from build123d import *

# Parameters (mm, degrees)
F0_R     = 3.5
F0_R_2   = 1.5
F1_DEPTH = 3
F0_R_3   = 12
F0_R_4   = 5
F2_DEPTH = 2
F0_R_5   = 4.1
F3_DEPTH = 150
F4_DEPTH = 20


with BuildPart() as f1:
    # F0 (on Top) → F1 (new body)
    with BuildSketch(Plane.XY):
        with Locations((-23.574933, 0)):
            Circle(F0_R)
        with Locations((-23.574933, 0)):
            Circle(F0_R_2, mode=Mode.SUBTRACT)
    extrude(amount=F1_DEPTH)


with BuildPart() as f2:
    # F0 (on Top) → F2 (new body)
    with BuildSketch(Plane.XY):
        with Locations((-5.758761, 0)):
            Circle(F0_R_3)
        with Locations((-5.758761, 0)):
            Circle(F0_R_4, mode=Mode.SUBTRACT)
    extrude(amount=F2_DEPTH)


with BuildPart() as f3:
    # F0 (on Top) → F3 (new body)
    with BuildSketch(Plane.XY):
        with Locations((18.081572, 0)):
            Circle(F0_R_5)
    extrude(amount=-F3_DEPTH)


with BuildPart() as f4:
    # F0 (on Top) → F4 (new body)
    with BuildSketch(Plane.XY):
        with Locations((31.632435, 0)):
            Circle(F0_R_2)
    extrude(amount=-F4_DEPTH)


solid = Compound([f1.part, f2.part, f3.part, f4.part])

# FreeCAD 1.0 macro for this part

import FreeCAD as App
import Part
import Sketcher
from FreeCAD import Vector

doc = App.newDocument("Part")
params = doc.addObject("Spreadsheet::Sheet", "Params")
for row, (alias, value) in enumerate([
    ("sketch1_diameter", "7 mm"),
    ("sketch1_diameter2", "3 mm"),
    ("pad1_length", "3 mm"),
    ("sketch2_diameter", "24 mm"),
    ("sketch2_diameter2", "10 mm"),
    ("pad2_length", "2 mm"),
    ("sketch3_diameter", "8.2 mm"),
    ("pad3_length", "150 mm"),
    ("sketch4_diameter", "3 mm"),
    ("pad4_length", "20 mm"),
], start=1):
    params.set(f"A{row}", alias)
    params.set(f"B{row}", "=" + value)
    params.setAlias(f"B{row}", alias)

body = doc.addObject("PartDesign::Body", "Body")

# Sketch on XY plane
sketch1 = body.newObject("Sketcher::SketchObject", "Sketch")
sketch1.AttachmentSupport = (doc.getObject("XY_Plane"), [""])
sketch1.MapMode = "FlatFace"
sketch1.addGeometry([
    Part.Circle(Vector(-23.6, 0, 0), Vector(0, 0, 1), 3.5),
    Part.Circle(Vector(-23.6, 0, 0), Vector(0, 0, 1), 1.5),
], False)
sketch1.addConstraint([
    Sketcher.Constraint("Coincident", 1, 3, 0, 3),
    Sketcher.Constraint("PointOnObject", 0, 3, -1),
    Sketcher.Constraint("Diameter", 0, 7.0),
    Sketcher.Constraint("Diameter", 1, 3.0),
    Sketcher.Constraint("DistanceX", 0, 3, -1, 1, 23.574933),
])
sketch1.setExpression("Constraints[2]", "Params.sketch1_diameter")
sketch1.setExpression("Constraints[3]", "Params.sketch1_diameter2")
pad1 = body.newObject("PartDesign::Pad", "Pad")
pad1.Profile = sketch1
pad1.setExpression("Length", "Params.pad1_length")
body2 = doc.addObject("PartDesign::Body", "Body001")

# Sketch on XY plane
sketch2 = body2.newObject("Sketcher::SketchObject", "Sketch001")
sketch2.AttachmentSupport = (doc.getObject("XY_Plane001"), [""])
sketch2.MapMode = "FlatFace"
sketch2.addGeometry([
    Part.Circle(Vector(-6, 0, 0), Vector(0, 0, 1), 12),
    Part.Circle(Vector(-6, 0, 0), Vector(0, 0, 1), 5),
], False)
sketch2.addConstraint([
    Sketcher.Constraint("Coincident", 1, 3, 0, 3),
    Sketcher.Constraint("PointOnObject", 0, 3, -1),
    Sketcher.Constraint("Diameter", 0, 24.0),
    Sketcher.Constraint("Diameter", 1, 10.0),
    Sketcher.Constraint("DistanceX", 0, 3, -1, 1, 5.758761),
])
sketch2.setExpression("Constraints[2]", "Params.sketch2_diameter")
sketch2.setExpression("Constraints[3]", "Params.sketch2_diameter2")
pad2 = body2.newObject("PartDesign::Pad", "Pad001")
pad2.Profile = sketch2
pad2.setExpression("Length", "Params.pad2_length")
body3 = doc.addObject("PartDesign::Body", "Body002")

# Sketch on XY plane
sketch3 = body3.newObject("Sketcher::SketchObject", "Sketch002")
sketch3.AttachmentSupport = (doc.getObject("XY_Plane002"), [""])
sketch3.MapMode = "FlatFace"
sketch3.addGeometry(Part.Circle(Vector(18.1, 0, 0), Vector(0, 0, 1), 4.1), False)
sketch3.addConstraint([
    Sketcher.Constraint("PointOnObject", 0, 3, -1),
    Sketcher.Constraint("Diameter", 0, 8.2),
    Sketcher.Constraint("DistanceX", -1, 1, 0, 3, 18.081572),
])
sketch3.setExpression("Constraints[1]", "Params.sketch3_diameter")
pad3 = body3.newObject("PartDesign::Pad", "Pad002")
pad3.Profile = sketch3
pad3.setExpression("Length", "Params.pad3_length")
pad3.Reversed = True
body4 = doc.addObject("PartDesign::Body", "Body003")

# Sketch on XY plane
sketch4 = body4.newObject("Sketcher::SketchObject", "Sketch003")
sketch4.AttachmentSupport = (doc.getObject("XY_Plane003"), [""])
sketch4.MapMode = "FlatFace"
sketch4.addGeometry(Part.Circle(Vector(31.6, 0, 0), Vector(0, 0, 1), 1.5), False)
sketch4.addConstraint([
    Sketcher.Constraint("PointOnObject", 0, 3, -1),
    Sketcher.Constraint("Diameter", 0, 3.0),
    Sketcher.Constraint("DistanceX", -1, 1, 0, 3, 31.632435),
])
sketch4.setExpression("Constraints[1]", "Params.sketch4_diameter")
pad4 = body4.newObject("PartDesign::Pad", "Pad003")
pad4.Profile = sketch4
pad4.setExpression("Length", "Params.pad4_length")
pad4.Reversed = True

doc.recompute()
